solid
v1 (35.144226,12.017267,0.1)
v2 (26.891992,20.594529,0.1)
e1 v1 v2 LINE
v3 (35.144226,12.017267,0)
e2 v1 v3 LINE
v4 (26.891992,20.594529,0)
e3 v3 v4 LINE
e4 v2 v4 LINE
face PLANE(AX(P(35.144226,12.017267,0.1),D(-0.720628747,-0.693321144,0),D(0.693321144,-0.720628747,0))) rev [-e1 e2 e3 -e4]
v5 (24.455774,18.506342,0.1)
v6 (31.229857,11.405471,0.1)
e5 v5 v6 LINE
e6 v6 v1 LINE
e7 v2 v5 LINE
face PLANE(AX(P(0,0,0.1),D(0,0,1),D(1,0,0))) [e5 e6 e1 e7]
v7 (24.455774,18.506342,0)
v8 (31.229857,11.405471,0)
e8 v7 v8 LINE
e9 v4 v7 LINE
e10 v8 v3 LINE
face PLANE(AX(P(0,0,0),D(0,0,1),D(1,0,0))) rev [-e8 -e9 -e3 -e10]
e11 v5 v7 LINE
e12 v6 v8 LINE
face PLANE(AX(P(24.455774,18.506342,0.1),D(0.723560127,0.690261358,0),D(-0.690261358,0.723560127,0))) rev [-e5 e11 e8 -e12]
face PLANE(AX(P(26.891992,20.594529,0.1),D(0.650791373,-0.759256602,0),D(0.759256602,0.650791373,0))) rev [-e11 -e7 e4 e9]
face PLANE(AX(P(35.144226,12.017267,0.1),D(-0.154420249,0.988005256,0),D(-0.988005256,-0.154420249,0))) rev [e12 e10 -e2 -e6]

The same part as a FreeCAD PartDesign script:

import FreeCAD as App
import Part
import Sketcher
Q = App.Units.Quantity

doc = App.newDocument("Part")
body = doc.addObject("PartDesign::Body", "Body")

# Sketch on XY plane
sketch1 = body.newObject("Sketcher::SketchObject", "Sketch")
sketch1.AttachmentSupport = (doc.getObject("XY_Plane"), [""])
sketch1.MapMode = "FlatFace"
sketch1.addGeometry([
    Part.LineSegment(App.Vector(31.2, 11.4, 0), App.Vector(35.1, 12, 0)),
    Part.LineSegment(App.Vector(35.1, 12, 0), App.Vector(26.9, 20.6, 0)),
    Part.LineSegment(App.Vector(26.9, 20.6, 0), App.Vector(24.5, 18.5, 0)),
    Part.LineSegment(App.Vector(24.5, 18.5, 0), App.Vector(31.2, 11.4, 0)),
], False)
sketch1.addConstraint([
    Sketcher.Constraint("Coincident", 0, 2, 1, 1),
    Sketcher.Constraint("Coincident", 1, 2, 2, 1),
    Sketcher.Constraint("Coincident", 2, 2, 3, 1),
    Sketcher.Constraint("Coincident", 3, 2, 0, 1),
    Sketcher.Constraint("Distance", 0, Q("3.961891 mm")),
    Sketcher.Constraint("Distance", 1, Q("11.902469 mm")),
    Sketcher.Constraint("Distance", 2, Q("3.208689 mm")),
    Sketcher.Constraint("DistanceY", -1, 1, 1, 2, Q("20.594529 mm")),
    Sketcher.Constraint("DistanceY", -1, 1, 2, 2, Q("18.506342 mm")),
    Sketcher.Constraint("DistanceY", -1, 1, 3, 2, Q("11.405471 mm")),
    Sketcher.Constraint("DistanceY", 0, 2, 1, 2, Q("8.577262 mm")),
    Sketcher.Constraint("DistanceX", -1, 1, 0, 2, Q("35.144226 mm")),
])
pad1 = body.newObject("PartDesign::Pad", "Pad")
pad1.Profile = sketch1
pad1.Length = 0.1

doc.recompute()
